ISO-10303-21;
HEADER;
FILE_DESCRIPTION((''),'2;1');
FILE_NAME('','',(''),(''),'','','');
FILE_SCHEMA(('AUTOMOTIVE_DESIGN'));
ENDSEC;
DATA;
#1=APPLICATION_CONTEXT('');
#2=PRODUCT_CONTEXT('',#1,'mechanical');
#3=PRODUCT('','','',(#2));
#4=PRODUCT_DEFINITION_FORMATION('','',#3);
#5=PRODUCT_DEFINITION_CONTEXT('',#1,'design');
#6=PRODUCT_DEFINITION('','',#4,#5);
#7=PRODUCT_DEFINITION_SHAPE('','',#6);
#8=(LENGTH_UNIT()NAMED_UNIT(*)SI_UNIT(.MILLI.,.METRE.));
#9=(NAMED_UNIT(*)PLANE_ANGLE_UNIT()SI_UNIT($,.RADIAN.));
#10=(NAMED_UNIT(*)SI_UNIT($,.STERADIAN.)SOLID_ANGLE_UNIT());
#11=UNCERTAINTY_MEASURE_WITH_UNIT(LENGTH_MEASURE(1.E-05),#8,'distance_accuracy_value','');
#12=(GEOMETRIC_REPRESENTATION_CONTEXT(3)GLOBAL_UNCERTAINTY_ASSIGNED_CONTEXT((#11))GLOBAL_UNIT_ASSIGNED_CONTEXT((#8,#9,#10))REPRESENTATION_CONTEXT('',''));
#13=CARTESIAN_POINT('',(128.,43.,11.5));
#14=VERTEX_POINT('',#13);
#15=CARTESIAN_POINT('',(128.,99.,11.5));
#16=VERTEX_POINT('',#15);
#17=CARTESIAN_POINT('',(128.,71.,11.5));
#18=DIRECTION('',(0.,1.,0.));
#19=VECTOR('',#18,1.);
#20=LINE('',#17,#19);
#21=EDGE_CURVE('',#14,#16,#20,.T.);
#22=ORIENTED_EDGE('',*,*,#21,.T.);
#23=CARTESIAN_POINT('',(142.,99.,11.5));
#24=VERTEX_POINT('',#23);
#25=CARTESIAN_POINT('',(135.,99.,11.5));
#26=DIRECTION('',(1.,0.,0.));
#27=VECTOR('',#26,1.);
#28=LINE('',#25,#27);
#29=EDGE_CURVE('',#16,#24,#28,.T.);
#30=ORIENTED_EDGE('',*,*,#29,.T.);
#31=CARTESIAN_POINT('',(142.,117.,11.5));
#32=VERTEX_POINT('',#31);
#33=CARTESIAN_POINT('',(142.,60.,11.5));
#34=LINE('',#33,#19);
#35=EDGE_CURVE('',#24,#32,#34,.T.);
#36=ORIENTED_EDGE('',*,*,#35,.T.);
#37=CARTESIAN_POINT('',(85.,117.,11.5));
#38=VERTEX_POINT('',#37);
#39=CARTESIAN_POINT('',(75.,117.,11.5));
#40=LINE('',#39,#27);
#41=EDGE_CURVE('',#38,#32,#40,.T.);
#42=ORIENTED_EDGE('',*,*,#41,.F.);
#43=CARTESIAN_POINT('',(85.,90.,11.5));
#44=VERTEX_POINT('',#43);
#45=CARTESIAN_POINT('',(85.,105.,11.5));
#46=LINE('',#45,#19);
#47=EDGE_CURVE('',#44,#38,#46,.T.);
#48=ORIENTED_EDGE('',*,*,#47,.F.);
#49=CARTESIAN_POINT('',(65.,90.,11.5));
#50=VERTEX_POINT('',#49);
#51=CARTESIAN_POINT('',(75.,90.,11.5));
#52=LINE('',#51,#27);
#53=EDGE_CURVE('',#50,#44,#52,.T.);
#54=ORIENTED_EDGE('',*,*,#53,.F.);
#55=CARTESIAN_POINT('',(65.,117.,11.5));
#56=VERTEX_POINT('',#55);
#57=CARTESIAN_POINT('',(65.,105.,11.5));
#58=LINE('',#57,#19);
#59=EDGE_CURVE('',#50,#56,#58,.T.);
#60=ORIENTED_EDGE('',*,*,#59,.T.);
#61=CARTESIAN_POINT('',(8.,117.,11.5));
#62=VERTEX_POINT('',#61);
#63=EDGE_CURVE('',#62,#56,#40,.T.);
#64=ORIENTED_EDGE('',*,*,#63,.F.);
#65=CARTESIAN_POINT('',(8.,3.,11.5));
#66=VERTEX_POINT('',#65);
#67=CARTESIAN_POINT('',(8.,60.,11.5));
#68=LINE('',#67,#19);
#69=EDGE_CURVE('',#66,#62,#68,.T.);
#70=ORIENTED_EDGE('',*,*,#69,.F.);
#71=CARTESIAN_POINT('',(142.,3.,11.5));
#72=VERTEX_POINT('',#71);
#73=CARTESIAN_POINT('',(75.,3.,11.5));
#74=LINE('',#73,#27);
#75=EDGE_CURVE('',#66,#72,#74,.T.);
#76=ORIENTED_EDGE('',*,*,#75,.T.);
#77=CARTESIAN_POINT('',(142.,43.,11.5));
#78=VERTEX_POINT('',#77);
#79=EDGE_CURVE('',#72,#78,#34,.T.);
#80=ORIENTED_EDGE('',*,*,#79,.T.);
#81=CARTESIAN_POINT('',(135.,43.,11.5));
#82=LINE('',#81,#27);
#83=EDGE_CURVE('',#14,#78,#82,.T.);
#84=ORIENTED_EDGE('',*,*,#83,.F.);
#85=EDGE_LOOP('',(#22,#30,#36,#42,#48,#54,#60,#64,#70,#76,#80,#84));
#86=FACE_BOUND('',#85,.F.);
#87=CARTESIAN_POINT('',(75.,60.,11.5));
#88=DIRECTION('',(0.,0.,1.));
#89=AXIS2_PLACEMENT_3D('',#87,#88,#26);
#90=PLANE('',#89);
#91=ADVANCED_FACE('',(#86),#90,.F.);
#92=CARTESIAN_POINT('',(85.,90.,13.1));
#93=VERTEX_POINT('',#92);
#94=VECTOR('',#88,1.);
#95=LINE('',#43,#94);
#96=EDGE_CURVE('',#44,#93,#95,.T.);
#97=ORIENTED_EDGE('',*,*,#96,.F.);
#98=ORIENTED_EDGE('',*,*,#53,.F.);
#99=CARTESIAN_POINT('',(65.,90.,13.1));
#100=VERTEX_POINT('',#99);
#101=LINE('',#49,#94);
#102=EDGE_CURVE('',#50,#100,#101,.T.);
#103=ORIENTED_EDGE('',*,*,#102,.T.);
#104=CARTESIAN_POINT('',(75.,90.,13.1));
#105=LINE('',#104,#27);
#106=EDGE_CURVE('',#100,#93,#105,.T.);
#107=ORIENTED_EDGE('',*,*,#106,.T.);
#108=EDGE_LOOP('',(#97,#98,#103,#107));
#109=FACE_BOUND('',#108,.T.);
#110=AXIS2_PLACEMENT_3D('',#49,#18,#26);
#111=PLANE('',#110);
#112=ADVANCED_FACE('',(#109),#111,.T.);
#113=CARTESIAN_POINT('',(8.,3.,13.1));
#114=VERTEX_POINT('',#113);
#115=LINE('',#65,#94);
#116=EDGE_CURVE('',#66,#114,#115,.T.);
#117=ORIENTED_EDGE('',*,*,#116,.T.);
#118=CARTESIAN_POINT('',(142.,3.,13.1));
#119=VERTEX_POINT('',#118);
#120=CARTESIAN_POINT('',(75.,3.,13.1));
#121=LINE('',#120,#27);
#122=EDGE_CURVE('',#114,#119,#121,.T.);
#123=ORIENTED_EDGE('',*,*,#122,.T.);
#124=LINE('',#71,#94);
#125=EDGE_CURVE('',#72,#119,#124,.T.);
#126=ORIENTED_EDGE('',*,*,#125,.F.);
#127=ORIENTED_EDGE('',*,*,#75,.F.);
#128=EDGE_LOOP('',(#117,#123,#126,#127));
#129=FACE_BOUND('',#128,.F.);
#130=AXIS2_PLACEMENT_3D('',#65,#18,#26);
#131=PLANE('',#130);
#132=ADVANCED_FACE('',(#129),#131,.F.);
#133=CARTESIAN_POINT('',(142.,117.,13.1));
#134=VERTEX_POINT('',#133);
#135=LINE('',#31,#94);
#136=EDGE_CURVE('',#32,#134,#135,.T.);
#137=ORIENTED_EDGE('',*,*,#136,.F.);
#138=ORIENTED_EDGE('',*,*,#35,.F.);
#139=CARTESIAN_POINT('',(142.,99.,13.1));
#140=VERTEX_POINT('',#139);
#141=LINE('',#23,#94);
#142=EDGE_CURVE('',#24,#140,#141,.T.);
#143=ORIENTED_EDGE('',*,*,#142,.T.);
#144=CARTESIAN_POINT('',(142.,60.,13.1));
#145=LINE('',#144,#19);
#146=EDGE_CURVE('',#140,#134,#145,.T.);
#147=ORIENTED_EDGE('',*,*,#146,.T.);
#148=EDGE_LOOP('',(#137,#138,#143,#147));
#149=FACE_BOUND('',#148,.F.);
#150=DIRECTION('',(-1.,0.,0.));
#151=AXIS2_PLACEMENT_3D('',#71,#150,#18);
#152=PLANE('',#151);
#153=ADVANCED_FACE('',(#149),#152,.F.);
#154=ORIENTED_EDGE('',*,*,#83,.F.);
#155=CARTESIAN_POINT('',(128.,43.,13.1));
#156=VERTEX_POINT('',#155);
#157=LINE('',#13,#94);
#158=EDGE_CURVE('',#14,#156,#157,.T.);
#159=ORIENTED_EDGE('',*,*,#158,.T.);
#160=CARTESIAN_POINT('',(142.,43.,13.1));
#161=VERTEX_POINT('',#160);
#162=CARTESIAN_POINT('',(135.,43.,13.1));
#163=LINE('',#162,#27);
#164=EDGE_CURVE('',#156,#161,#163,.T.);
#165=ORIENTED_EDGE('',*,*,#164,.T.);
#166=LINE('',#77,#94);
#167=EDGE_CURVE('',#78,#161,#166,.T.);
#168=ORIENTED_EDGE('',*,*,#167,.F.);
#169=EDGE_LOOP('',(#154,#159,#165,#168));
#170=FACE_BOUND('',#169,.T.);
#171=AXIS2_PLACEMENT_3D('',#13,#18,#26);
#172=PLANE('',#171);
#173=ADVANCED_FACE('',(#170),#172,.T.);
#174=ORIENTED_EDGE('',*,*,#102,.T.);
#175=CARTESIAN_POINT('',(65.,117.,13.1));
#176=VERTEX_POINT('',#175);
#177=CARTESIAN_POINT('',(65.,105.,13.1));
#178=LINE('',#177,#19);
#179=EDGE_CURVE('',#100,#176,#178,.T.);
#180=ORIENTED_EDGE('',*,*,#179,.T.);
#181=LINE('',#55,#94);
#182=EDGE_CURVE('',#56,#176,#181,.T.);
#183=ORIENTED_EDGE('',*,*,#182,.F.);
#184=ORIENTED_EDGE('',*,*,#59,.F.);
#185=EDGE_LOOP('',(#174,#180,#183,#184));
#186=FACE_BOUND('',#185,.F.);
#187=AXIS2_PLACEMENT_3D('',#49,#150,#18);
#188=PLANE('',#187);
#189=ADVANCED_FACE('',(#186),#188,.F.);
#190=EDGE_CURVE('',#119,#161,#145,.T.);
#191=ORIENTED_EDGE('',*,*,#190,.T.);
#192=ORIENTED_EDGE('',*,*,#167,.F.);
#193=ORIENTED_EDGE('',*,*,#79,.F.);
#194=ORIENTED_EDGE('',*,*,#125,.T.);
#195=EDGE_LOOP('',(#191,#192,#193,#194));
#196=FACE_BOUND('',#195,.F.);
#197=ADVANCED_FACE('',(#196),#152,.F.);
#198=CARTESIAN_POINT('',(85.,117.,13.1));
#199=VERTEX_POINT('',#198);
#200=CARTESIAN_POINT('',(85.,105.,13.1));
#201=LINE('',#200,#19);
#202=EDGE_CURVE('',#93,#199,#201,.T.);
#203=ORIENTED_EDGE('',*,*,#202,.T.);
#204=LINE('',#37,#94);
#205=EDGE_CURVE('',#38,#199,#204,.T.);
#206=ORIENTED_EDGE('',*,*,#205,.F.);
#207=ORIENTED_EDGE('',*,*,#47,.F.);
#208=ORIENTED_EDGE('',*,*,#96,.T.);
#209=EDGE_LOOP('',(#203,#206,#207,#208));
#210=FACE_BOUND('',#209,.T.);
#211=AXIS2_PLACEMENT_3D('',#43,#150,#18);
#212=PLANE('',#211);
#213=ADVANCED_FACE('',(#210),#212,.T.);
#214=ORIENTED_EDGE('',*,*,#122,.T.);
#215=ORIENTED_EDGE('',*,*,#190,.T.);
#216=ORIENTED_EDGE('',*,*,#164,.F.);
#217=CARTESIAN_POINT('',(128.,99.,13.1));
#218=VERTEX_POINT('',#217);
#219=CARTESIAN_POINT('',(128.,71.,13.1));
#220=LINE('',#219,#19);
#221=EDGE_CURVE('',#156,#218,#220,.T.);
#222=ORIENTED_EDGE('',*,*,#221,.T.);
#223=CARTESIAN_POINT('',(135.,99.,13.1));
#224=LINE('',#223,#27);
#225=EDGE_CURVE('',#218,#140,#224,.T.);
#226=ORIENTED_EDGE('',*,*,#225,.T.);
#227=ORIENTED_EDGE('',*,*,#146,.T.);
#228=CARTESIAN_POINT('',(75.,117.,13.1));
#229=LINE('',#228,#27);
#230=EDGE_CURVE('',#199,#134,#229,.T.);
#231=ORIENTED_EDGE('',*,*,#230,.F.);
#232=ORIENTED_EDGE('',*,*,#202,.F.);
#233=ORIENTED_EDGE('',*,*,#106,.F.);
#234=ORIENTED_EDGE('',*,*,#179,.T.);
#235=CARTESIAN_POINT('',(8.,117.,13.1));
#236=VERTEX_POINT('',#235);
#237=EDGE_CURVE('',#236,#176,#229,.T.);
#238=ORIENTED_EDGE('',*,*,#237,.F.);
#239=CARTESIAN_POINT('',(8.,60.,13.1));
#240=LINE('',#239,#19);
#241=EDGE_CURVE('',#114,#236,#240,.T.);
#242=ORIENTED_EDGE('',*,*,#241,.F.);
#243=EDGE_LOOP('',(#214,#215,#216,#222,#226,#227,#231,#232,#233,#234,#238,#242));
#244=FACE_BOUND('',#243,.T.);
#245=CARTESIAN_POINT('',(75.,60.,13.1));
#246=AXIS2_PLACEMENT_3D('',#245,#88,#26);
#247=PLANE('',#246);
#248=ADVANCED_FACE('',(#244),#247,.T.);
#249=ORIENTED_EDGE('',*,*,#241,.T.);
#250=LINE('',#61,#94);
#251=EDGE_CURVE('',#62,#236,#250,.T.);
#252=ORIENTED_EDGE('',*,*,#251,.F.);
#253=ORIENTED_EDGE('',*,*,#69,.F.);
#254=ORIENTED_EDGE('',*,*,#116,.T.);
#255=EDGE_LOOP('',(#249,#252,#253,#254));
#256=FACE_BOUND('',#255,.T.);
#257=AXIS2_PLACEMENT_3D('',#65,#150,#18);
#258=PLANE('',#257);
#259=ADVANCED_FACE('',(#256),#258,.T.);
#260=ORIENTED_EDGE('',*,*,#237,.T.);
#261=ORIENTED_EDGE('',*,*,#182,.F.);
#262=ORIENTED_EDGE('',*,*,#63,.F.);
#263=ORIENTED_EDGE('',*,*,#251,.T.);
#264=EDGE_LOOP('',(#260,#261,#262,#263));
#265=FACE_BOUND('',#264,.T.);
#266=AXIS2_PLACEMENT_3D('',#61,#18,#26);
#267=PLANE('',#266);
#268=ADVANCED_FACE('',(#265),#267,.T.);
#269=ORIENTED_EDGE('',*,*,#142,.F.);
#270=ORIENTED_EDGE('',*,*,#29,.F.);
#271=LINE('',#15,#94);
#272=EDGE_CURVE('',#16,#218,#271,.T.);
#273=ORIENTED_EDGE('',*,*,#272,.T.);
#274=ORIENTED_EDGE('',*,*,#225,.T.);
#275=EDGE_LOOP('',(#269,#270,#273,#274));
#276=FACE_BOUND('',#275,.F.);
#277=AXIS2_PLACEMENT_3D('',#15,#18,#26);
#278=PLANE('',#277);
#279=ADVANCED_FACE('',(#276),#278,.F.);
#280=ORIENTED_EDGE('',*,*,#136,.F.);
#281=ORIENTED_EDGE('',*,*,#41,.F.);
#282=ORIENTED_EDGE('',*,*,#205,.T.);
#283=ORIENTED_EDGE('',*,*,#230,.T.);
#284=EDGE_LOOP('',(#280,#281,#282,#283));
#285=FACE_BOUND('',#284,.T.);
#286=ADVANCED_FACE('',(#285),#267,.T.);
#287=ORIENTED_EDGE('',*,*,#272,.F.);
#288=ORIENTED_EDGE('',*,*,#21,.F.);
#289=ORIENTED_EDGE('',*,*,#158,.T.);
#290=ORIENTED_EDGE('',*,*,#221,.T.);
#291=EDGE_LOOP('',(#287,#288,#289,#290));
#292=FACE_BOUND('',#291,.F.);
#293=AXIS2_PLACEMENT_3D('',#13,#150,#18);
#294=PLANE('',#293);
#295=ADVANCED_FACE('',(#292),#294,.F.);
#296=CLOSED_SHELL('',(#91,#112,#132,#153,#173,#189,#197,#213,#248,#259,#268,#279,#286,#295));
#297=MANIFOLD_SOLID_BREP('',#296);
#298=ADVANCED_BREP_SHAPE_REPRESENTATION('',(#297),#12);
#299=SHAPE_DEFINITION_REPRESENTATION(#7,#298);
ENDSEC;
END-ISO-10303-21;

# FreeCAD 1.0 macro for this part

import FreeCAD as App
import Part
import Sketcher

doc = App.newDocument("Part")
body = doc.addObject("PartDesign::Body", "Body")

# Sketch on XY plane
sketch1 = doc.addObject("Sketcher::SketchObject", "Sketch")
body.addObject(sketch1)
sketch1.AttachmentSupport = (doc.XY_Plane, [""])
sketch1.MapMode = "FlatFace"
sketch1.AttachmentOffset = App.Placement(App.Vector(0, 0, 11.5), App.Rotation())
sketch1.addGeometry(Part.LineSegment(App.Vector(128, 99, 0), App.Vector(128, 43, 0)), False)
sketch1.addGeometry(Part.LineSegment(App.Vector(128, 43, 0), App.Vector(142, 43, 0)), False)
sketch1.addGeometry(Part.LineSegment(App.Vector(142, 43, 0), App.Vector(142, 99, 0)), False)
sketch1.addGeometry(Part.LineSegment(App.Vector(142, 99, 0), App.Vector(128, 99, 0)), False)
sketch1.addConstraint(Sketcher.Constraint("Coincident", 0, 2, 1, 1))
sketch1.addConstraint(Sketcher.Constraint("Coincident", 1, 2, 2, 1))
sketch1.addConstraint(Sketcher.Constraint("Coincident", 2, 2, 3, 1))
sketch1.addConstraint(Sketcher.Constraint("Coincident", 3, 2, 0, 1))
sketch1.addConstraint(Sketcher.Constraint("Vertical", 0))
sketch1.addConstraint(Sketcher.Constraint("Horizontal", 1))
sketch1.addConstraint(Sketcher.Constraint("Vertical", 2))
sketch1.addConstraint(Sketcher.Constraint("Horizontal", 3))
sketch1.addConstraint(Sketcher.Constraint("DistanceX", 1, 1, 1, 2, 14.0))
sketch1.addConstraint(Sketcher.Constraint("DistanceY", 0, 2, 0, 1, 56.0))
sketch1.addConstraint(Sketcher.Constraint("DistanceX", -1, 1, 0, 2, 128.0))
sketch1.addConstraint(Sketcher.Constraint("DistanceY", -1, 1, 0, 2, 43.0))
pad1 = doc.addObject("PartDesign::Pad", "Pad")
body.addObject(pad1)
pad1.Profile = sketch1
pad1.Length = 1.6
body2 = doc.addObject("PartDesign::Body", "Body001")

# Sketch on XY plane
sketch2 = doc.addObject("Sketcher::SketchObject", "Sketch001")
body2.addObject(sketch2)
sketch2.AttachmentSupport = (doc.getObject("XY_Plane001"), [""])
sketch2.MapMode = "FlatFace"
sketch2.AttachmentOffset = App.Placement(App.Vector(0, 0, 11.5), App.Rotation())
sketch2.addGeometry(Part.LineSegment(App.Vector(65, 120, 0), App.Vector(65, 90, 0)), False)
sketch2.addGeometry(Part.LineSegment(App.Vector(65, 90, 0), App.Vector(85, 90, 0)), False)
sketch2.addGeometry(Part.LineSegment(App.Vector(85, 90, 0), App.Vector(85, 120, 0)), False)
sketch2.addGeometry(Part.LineSegment(App.Vector(85, 120, 0), App.Vector(65, 120, 0)), False)
sketch2.addConstraint(Sketcher.Constraint("Coincident", 0, 2, 1, 1))
sketch2.addConstraint(Sketcher.Constraint("Coincident", 1, 2, 2, 1))
sketch2.addConstraint(Sketcher.Constraint("Coincident", 2, 2, 3, 1))
sketch2.addConstraint(Sketcher.Constraint("Coincident", 3, 2, 0, 1))
sketch2.addConstraint(Sketcher.Constraint("Vertical", 0))
sketch2.addConstraint(Sketcher.Constraint("Horizontal", 1))
sketch2.addConstraint(Sketcher.Constraint("Vertical", 2))
sketch2.addConstraint(Sketcher.Constraint("Horizontal", 3))
sketch2.addConstraint(Sketcher.Constraint("DistanceX", 1, 1, 1, 2, 20.0))
sketch2.addConstraint(Sketcher.Constraint("DistanceY", 0, 2, 0, 1, 30.0))
sketch2.addConstraint(Sketcher.Constraint("DistanceX", -1, 1, 0, 2, 65.0))
sketch2.addConstraint(Sketcher.Constraint("DistanceY", -1, 1, 0, 2, 90.0))
pad2 = doc.addObject("PartDesign::Pad", "Pad001")
body2.addObject(pad2)
pad2.Profile = sketch2
pad2.Length = 1.6
body3 = doc.addObject("PartDesign::Body", "Body002")

# Sketch on XY plane
sketch3 = doc.addObject("Sketcher::SketchObject", "Sketch002")
body3.addObject(sketch3)
sketch3.AttachmentSupport = (doc.getObject("XY_Plane002"), [""])
sketch3.MapMode = "FlatFace"
sketch3.AttachmentOffset = App.Placement(App.Vector(0, 0, 11.5), App.Rotation())
sketch3.addGeometry(Part.LineSegment(App.Vector(8, 117, 0), App.Vector(8, 3, 0)), False)
sketch3.addGeometry(Part.LineSegment(App.Vector(8, 3, 0), App.Vector(142, 3, 0)), False)
sketch3.addGeometry(Part.LineSegment(App.Vector(142, 3, 0), App.Vector(142, 117, 0)), False)
sketch3.addGeometry(Part.LineSegment(App.Vector(142, 117, 0), App.Vector(8, 117, 0)), False)
sketch3.addConstraint(Sketcher.Constraint("Coincident", 0, 2, 1, 1))
sketch3.addConstraint(Sketcher.Constraint("Coincident", 1, 2, 2, 1))
sketch3.addConstraint(Sketcher.Constraint("Coincident", 2, 2, 3, 1))
sketch3.addConstraint(Sketcher.Constraint("Coincident", 3, 2, 0, 1))
sketch3.addConstraint(Sketcher.Constraint("Vertical", 0))
sketch3.addConstraint(Sketcher.Constraint("Horizontal", 1))
sketch3.addConstraint(Sketcher.Constraint("Vertical", 2))
sketch3.addConstraint(Sketcher.Constraint("Horizontal", 3))
sketch3.addConstraint(Sketcher.Constraint("DistanceX", 1, 1, 1, 2, 134.0))
sketch3.addConstraint(Sketcher.Constraint("DistanceY", 0, 2, 0, 1, 114.0))
sketch3.addConstraint(Sketcher.Constraint("DistanceX", -1, 1, 0, 2, 8.0))
sketch3.addConstraint(Sketcher.Constraint("DistanceY", -1, 1, 0, 2, 3.0))
pad3 = doc.addObject("PartDesign::Pad", "Pad002")
body3.addObject(pad3)
pad3.Profile = sketch3
pad3.Length = 1.6
doc.recompute()

boolean = doc.addObject("PartDesign::Boolean", "Boolean")
body3.addObject(boolean)
boolean.Type = "Cut"
boolean.addObjects([body2])
doc.recompute()

boolean2 = doc.addObject("PartDesign::Boolean", "Boolean001")
body3.addObject(boolean2)
boolean2.Type = "Cut"
boolean2.addObjects([body])

doc.recompute()
